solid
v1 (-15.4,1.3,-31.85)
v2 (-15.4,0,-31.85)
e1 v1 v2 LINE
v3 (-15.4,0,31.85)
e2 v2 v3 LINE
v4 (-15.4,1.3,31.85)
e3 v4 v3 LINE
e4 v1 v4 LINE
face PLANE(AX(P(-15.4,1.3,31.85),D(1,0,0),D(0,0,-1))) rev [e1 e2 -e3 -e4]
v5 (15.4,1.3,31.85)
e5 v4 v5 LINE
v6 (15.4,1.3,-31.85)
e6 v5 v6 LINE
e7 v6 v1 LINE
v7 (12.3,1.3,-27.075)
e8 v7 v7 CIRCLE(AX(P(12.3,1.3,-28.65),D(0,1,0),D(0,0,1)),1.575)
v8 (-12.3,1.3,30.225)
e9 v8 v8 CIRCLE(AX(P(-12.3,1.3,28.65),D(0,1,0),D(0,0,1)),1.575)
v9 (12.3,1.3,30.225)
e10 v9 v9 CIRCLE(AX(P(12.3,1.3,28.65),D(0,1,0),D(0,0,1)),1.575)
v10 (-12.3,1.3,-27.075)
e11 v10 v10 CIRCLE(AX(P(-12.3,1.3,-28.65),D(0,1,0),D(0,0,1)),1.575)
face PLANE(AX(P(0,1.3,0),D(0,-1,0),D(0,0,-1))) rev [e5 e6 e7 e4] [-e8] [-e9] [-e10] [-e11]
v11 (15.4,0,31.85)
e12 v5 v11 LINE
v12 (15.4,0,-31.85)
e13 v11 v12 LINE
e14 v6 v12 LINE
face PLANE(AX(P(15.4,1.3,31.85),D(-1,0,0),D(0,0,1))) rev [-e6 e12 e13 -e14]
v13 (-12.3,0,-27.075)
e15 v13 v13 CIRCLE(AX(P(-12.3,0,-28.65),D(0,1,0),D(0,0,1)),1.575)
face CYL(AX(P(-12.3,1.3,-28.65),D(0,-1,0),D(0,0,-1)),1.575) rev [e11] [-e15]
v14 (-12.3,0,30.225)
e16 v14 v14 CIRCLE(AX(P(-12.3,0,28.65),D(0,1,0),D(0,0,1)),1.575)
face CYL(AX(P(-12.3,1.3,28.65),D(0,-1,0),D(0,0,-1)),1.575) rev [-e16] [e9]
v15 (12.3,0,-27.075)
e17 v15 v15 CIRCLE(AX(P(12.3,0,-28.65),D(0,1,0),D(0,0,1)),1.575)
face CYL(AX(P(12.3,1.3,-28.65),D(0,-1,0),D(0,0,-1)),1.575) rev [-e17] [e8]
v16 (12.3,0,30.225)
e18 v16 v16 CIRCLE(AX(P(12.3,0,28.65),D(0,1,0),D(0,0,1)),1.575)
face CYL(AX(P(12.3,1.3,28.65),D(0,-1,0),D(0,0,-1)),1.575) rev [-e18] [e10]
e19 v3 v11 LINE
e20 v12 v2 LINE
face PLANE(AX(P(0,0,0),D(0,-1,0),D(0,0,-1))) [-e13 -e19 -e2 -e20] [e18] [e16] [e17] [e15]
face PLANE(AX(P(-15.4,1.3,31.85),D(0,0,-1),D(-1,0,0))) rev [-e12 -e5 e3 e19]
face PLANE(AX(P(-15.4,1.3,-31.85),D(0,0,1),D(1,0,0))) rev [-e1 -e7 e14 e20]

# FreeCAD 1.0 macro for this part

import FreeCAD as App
import Part
import Sketcher

V = App.Vector
Q = App.Units.Quantity


def add_polygon(sketch, points):
    """Adds a closed chain of lines whose ends are joined by coincident constraints."""
    first, n = sketch.GeometryCount, len(points)
    for a, b in zip(points, points[1:] + points[:1]):
        sketch.addGeometry(Part.LineSegment(App.Vector(*a, 0), App.Vector(*b, 0)), False)
    for i in range(n):
        sketch.addConstraint(Sketcher.Constraint("Coincident", first + i, 2, first + (i + 1) % n, 1))

doc = App.newDocument("Part")
body = doc.addObject("PartDesign::Body", "Body")

# Sketch on XZ plane
sketch1 = body.newObject("Sketcher::SketchObject", "Sketch")
sketch1.AttachmentSupport = (doc.getObject("XZ_Plane"), [""])
sketch1.MapMode = "FlatFace"
add_polygon(sketch1, [(-15.4, -31.9), (-15.4, 31.9), (15.4, 31.9), (15.4, -31.9)])  # lines 0-3
sketch1.addGeometry(Part.Circle(V(-12.3, 28.6, 0), V(0, 0, 1), 1.6), False)  # 4
sketch1.addGeometry(Part.Circle(V(12.3, 28.6, 0), V(0, 0, 1), 1.6), False)  # 5
sketch1.addGeometry(Part.Circle(V(-12.3, -28.6, 0), V(0, 0, 1), 1.6), False)  # 6
sketch1.addGeometry(Part.Circle(V(12.3, -28.6, 0), V(0, 0, 1), 1.6), False)  # 7
sketch1.addConstraint([
    Sketcher.Constraint("Vertical", 0),
    Sketcher.Constraint("Horizontal", 1),
    Sketcher.Constraint("Vertical", 2),
    Sketcher.Constraint("Horizontal", 3),
    Sketcher.Constraint("Equal", 4, 5),
    Sketcher.Constraint("Equal", 5, 6),
    Sketcher.Constraint("Equal", 6, 7),
    Sketcher.Constraint("Symmetric", 5, 3, 6, 3, -1, 1),
    Sketcher.Constraint("Symmetric", 4, 3, 7, 3, -1, 1),
    Sketcher.Constraint("Symmetric", 0, 2, 2, 2, -1, 1),
    Sketcher.Constraint("Symmetric", 4, 3, 5, 3, -2),
    Sketcher.Constraint("Diameter", 4, Q("3.15 mm")),
    Sketcher.Constraint("DistanceX", 1, 1, 1, 2, Q("30.8 mm")),
    Sketcher.Constraint("DistanceY", 0, 1, 0, 2, Q("63.7 mm")),
    Sketcher.Constraint("DistanceX", 4, 3, -1, 1, Q("12.3 mm")),
    Sketcher.Constraint("DistanceY", 6, 3, 4, 3, Q("57.3 mm")),
])
pad1 = body.newObject("PartDesign::Pad", "Pad")
pad1.Profile = sketch1
pad1.Length = 1.3
pad1.Reversed = True

doc.recompute()
